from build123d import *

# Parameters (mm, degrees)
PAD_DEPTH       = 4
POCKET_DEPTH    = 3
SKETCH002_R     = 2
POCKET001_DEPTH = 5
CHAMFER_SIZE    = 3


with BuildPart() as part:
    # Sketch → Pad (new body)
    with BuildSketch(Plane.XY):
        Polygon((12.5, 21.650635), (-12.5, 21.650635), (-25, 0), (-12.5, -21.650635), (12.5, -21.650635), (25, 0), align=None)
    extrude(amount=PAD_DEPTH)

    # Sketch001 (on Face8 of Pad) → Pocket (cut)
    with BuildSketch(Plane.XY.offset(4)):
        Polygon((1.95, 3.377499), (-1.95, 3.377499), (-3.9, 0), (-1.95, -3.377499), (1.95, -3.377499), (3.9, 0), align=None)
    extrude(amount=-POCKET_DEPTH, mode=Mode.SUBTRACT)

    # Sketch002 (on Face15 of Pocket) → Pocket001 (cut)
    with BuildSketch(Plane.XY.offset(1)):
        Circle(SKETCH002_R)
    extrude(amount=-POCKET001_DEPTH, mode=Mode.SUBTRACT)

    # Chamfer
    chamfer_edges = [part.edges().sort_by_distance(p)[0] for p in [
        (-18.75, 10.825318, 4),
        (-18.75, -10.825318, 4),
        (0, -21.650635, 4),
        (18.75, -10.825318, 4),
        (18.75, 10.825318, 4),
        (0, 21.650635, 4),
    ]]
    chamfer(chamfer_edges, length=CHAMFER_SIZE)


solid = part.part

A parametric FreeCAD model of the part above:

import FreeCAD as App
import Part
import Sketcher
Q = App.Units.Quantity


def edges_at(feature, points):
    """Names of the edges that pass closest to the given points."""
    edges = feature.Shape.Edges
    near = lambda p: min(range(len(edges)), key=lambda i: edges[i].distToShape(Part.Vertex(*p))[0])
    return sorted({f"Edge{near(p) + 1}" for p in points})

doc = App.newDocument("Part")
params = doc.addObject("Spreadsheet::Sheet", "Params")
for row, (alias, value) in enumerate([
    ("sketch1_width", "25 mm"),
    ("sketch1_length", "25 mm"),
    ("pad1_length", "4 mm"),
    ("sketch2_width", "3.9 mm"),
    ("sketch2_length", "3.9 mm"),
    ("pocket1_length", "3 mm"),
    ("sketch3_diameter", "4 mm"),
    ("pocket2_length", "5 mm"),
    ("chamfer_size", "3 mm"),
], start=1):
    params.set(f"A{row}", alias)
    params.set(f"B{row}", "=" + value)
    params.setAlias(f"B{row}", alias)

body = doc.addObject("PartDesign::Body", "Body")

# Sketch on XY plane
sketch1 = body.newObject("Sketcher::SketchObject", "Sketch")
sketch1.AttachmentSupport = (doc.getObject("XY_Plane"), [""])
sketch1.MapMode = "FlatFace"
sketch1.addGeometry([
    Part.LineSegment(App.Vector(12, 22, 0), App.Vector(-12, 22, 0)),  # 0
    Part.LineSegment(App.Vector(-12, 22, 0), App.Vector(-25, 0, 0)),  # 1
    Part.LineSegment(App.Vector(-25, 0, 0), App.Vector(-12, -22, 0)),  # 2
    Part.LineSegment(App.Vector(-12, -22, 0), App.Vector(12, -22, 0)),  # 3
    Part.LineSegment(App.Vector(12, -22, 0), App.Vector(25, 0, 0)),  # 4
    Part.LineSegment(App.Vector(25, 0, 0), App.Vector(12, 22, 0)),  # 5
], False)
sketch1.addConstraint([
    Sketcher.Constraint("Coincident", 0, 2, 1, 1),
    Sketcher.Constraint("Coincident", 1, 2, 2, 1),
    Sketcher.Constraint("Coincident", 2, 2, 3, 1),
    Sketcher.Constraint("Coincident", 3, 2, 4, 1),
    Sketcher.Constraint("Coincident", 4, 2, 5, 1),
    Sketcher.Constraint("Coincident", 5, 2, 0, 1),
    Sketcher.Constraint("Horizontal", 0),
    Sketcher.Constraint("Horizontal", 3),
    Sketcher.Constraint("Symmetric", 0, 2, 3, 2, -1, 1),
    Sketcher.Constraint("Symmetric", 1, 2, 4, 2, -1, 1),
    Sketcher.Constraint("PointOnObject", 1, 2, -1),
    Sketcher.Constraint("Parallel", 2, 5),
    Sketcher.Constraint("Vertical", 0, 2, 2, 2),
    Sketcher.Constraint("DistanceX", 0, 2, 0, 1, Q("25 mm")),
    Sketcher.Constraint("Angle", 1, Q("-120 deg")),
    Sketcher.Constraint("Distance", 1, Q("25 mm")),
])
sketch1.setExpression("Constraints[13]", "Params.sketch1_width")
sketch1.setExpression("Constraints[15]", "Params.sketch1_length")
pad1 = body.newObject("PartDesign::Pad", "Pad")
pad1.Profile = sketch1
pad1.setExpression("Length", "Params.pad1_length")

# Sketch on XY plane
sketch2 = body.newObject("Sketcher::SketchObject", "Sketch001")
sketch2.AttachmentSupport = (doc.getObject("XY_Plane"), [""])
sketch2.MapMode = "FlatFace"
sketch2.AttachmentOffset = App.Placement(App.Vector(0, 0, 4), App.Rotation())
sketch2.addGeometry([
    Part.LineSegment(App.Vector(1.9, 3.4, 0), App.Vector(-1.9, 3.4, 0)),  # 0
    Part.LineSegment(App.Vector(-1.9, 3.4, 0), App.Vector(-3.9, 0, 0)),  # 1
    Part.LineSegment(App.Vector(-3.9, 0, 0), App.Vector(-1.9, -3.4, 0)),  # 2
    Part.LineSegment(App.Vector(-1.9, -3.4, 0), App.Vector(1.9, -3.4, 0)),  # 3
    Part.LineSegment(App.Vector(1.9, -3.4, 0), App.Vector(3.9, 0, 0)),  # 4
    Part.LineSegment(App.Vector(3.9, 0, 0), App.Vector(1.9, 3.4, 0)),  # 5
], False)
sketch2.addConstraint([
    Sketcher.Constraint("Coincident", 0, 2, 1, 1),
    Sketcher.Constraint("Coincident", 1, 2, 2, 1),
    Sketcher.Constraint("Coincident", 2, 2, 3, 1),
    Sketcher.Constraint("Coincident", 3, 2, 4, 1),
    Sketcher.Constraint("Coincident", 4, 2, 5, 1),
    Sketcher.Constraint("Coincident", 5, 2, 0, 1),
    Sketcher.Constraint("Horizontal", 0),
    Sketcher.Constraint("Horizontal", 3),
    Sketcher.Constraint("Symmetric", 0, 2, 3, 2, -1, 1),
    Sketcher.Constraint("Symmetric", 1, 2, 4, 2, -1, 1),
    Sketcher.Constraint("PointOnObject", 1, 2, -1),
    Sketcher.Constraint("Parallel", 2, 5),
    Sketcher.Constraint("Vertical", 0, 2, 2, 2),
    Sketcher.Constraint("Angle", 1, Q("-120.000001 deg")),
    Sketcher.Constraint("DistanceX", 0, 2, 0, 1, Q("3.9 mm")),
    Sketcher.Constraint("Distance", 1, Q("3.9 mm")),
])
sketch2.setExpression("Constraints[14]", "Params.sketch2_width")
sketch2.setExpression("Constraints[15]", "Params.sketch2_length")
pocket1 = body.newObject("PartDesign::Pocket", "Pocket")
pocket1.Profile = sketch2
pocket1.setExpression("Length", "Params.pocket1_length")

# Sketch on XY plane
sketch3 = body.newObject("Sketcher::SketchObject", "Sketch002")
sketch3.AttachmentSupport = (doc.getObject("XY_Plane"), [""])
sketch3.MapMode = "FlatFace"
sketch3.AttachmentOffset = App.Placement(App.Vector(0, 0, 1), App.Rotation())
sketch3.addGeometry(Part.Circle(App.Vector(0, 0, 0), App.Vector(0, 0, 1), 2), False)
sketch3.addConstraint([
    Sketcher.Constraint("Coincident", 0, 3, -1, 1),
    Sketcher.Constraint("Diameter", 0, Q("4 mm")),
])
sketch3.setExpression("Constraints[1]", "Params.sketch3_diameter")
pocket2 = body.newObject("PartDesign::Pocket", "Pocket001")
pocket2.Profile = sketch3
pocket2.setExpression("Length", "Params.pocket2_length")
doc.recompute()

chamfer = body.newObject("PartDesign::Chamfer", "Chamfer")
chamfer.Base = (pocket2, edges_at(pocket2, [
    (-18.75, 10.825, 4),
    (-18.75, -10.825, 4),
    (0, -21.651, 4),
    (18.75, -10.825, 4),
    (18.75, 10.825, 4),
    (0, 21.651, 4),
]))
chamfer.setExpression("Size", "Params.chamfer_size")

doc.recompute()
